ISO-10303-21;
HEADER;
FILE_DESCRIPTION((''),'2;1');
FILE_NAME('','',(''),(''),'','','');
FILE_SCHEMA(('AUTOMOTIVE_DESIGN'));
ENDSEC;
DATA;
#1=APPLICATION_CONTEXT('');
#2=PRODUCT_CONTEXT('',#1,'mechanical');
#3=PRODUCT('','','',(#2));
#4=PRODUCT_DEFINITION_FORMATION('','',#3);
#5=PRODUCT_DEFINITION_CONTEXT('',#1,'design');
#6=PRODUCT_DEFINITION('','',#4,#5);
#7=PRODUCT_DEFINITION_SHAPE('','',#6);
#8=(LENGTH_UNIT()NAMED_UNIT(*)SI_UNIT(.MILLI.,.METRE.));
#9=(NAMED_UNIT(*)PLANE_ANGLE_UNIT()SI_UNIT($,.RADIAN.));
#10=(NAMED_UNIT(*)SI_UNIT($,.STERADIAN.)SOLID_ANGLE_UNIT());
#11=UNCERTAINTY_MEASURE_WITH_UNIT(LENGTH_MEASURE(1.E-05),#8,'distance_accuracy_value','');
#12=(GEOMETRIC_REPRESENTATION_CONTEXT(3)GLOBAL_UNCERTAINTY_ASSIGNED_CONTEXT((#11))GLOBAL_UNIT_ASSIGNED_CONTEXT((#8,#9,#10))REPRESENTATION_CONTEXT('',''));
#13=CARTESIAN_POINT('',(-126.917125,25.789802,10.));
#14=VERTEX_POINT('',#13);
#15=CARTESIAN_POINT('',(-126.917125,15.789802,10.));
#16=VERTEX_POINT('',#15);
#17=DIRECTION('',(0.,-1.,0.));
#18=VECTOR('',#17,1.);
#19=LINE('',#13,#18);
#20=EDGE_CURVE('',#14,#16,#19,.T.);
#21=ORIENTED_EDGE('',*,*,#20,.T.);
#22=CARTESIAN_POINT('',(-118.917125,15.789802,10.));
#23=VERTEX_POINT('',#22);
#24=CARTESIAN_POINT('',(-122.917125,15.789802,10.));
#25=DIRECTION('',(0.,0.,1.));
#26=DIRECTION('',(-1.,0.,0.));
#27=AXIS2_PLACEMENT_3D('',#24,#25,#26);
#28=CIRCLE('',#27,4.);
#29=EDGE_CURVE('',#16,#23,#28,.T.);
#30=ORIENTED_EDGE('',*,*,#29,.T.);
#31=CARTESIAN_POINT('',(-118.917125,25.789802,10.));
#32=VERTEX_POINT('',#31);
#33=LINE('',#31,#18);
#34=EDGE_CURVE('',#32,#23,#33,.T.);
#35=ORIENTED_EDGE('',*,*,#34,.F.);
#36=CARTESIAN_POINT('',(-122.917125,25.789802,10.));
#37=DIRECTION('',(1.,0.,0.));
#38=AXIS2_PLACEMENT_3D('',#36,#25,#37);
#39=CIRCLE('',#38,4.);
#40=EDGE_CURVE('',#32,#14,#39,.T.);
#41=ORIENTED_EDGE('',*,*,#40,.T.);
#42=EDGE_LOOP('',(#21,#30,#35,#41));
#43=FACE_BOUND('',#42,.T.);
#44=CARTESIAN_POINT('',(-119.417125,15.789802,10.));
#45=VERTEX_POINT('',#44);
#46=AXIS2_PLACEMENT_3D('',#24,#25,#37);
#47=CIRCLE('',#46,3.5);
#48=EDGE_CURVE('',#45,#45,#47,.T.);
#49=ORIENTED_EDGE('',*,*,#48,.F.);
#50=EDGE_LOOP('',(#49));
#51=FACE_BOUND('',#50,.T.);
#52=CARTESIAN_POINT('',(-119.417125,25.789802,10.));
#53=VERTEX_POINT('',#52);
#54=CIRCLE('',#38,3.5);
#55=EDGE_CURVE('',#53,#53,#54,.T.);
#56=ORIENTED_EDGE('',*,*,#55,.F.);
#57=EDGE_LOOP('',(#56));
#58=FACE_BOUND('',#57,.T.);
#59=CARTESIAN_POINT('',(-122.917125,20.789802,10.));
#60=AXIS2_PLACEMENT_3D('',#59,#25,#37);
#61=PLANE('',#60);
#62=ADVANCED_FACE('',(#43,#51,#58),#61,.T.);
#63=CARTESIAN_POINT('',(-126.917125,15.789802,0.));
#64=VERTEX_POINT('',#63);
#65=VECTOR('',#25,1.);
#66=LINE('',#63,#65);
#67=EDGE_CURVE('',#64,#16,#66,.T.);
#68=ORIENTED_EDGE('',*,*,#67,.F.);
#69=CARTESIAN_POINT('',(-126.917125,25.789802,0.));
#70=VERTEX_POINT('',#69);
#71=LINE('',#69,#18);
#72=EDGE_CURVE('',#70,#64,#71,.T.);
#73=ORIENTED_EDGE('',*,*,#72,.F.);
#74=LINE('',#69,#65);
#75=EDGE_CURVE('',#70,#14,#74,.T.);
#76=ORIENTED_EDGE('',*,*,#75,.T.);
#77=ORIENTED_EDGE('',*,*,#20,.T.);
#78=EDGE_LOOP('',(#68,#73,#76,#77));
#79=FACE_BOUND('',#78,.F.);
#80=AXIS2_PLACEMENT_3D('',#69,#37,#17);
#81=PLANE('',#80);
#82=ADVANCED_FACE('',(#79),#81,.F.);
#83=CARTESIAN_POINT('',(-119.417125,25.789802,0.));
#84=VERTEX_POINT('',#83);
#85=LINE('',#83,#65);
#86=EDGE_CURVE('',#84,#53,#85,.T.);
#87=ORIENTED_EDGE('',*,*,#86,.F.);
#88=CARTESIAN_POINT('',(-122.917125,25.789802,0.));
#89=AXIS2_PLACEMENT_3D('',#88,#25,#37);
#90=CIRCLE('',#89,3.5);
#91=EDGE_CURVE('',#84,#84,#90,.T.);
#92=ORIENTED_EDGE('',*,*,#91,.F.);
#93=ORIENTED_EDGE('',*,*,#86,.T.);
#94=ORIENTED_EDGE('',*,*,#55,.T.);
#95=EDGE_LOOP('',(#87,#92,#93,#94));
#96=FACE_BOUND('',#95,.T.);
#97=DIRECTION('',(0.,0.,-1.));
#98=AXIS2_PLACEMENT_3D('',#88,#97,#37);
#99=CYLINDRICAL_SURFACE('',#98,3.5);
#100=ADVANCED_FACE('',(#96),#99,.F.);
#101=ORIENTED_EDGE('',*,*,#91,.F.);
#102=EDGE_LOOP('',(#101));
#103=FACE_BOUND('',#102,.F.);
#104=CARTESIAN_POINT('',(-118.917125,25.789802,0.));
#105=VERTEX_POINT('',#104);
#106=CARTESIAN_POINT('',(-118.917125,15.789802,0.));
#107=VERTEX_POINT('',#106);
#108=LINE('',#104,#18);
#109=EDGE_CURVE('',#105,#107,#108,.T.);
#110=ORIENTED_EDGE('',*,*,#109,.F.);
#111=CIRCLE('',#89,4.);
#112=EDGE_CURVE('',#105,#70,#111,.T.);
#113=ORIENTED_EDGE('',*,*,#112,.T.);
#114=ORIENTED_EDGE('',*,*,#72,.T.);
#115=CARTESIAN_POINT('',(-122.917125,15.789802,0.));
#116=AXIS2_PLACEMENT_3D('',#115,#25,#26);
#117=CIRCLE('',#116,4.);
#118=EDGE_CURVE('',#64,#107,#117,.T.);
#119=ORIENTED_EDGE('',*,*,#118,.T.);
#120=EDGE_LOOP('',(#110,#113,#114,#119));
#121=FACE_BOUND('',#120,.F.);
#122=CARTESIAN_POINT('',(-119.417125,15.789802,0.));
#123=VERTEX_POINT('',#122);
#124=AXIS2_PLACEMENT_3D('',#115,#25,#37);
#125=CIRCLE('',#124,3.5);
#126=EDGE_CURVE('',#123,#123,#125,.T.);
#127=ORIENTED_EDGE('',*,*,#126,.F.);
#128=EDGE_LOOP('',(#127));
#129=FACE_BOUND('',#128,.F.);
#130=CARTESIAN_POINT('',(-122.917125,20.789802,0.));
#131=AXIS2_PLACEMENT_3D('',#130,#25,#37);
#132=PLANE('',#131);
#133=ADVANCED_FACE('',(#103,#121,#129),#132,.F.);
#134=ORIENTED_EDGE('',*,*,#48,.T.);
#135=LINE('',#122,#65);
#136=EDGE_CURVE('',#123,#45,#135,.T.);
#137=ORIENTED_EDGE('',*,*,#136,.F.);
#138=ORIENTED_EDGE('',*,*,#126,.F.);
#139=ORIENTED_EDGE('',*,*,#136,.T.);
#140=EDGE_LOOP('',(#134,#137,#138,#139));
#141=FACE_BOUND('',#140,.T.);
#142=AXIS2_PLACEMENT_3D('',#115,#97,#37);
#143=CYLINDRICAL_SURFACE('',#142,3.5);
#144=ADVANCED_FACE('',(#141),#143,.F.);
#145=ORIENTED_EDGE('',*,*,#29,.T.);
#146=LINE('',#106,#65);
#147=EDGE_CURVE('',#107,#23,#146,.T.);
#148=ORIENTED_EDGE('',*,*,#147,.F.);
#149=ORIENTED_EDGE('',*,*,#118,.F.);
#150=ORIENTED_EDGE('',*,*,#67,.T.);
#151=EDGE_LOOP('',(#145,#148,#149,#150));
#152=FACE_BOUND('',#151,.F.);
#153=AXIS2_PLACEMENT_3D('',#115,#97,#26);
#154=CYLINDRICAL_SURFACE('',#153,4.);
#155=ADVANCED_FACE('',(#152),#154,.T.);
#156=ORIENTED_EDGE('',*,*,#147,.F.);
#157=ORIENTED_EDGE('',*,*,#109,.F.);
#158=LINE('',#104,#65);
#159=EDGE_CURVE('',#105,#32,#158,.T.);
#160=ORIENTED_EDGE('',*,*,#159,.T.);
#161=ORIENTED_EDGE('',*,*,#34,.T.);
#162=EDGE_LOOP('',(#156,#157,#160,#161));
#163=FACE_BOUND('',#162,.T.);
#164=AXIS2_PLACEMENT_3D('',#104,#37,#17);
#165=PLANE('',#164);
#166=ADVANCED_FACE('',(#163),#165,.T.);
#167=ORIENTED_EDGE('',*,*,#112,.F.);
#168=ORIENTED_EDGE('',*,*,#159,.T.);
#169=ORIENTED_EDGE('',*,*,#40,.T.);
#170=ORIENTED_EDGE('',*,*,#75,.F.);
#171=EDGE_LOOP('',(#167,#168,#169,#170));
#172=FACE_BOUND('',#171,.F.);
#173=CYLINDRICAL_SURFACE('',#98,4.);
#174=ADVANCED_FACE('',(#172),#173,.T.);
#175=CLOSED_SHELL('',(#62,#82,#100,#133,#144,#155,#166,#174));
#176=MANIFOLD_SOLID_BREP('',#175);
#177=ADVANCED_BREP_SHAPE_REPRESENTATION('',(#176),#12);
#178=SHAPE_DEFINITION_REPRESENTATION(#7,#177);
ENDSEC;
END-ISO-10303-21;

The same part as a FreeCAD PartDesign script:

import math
import FreeCAD as App
import Part
import Sketcher

V = App.Vector
Q = App.Units.Quantity

doc = App.newDocument("Part")
params = doc.addObject("Spreadsheet::Sheet", "Params")
for row, (alias, value) in enumerate([
    ("sketch1_diameter", "7 mm"),
    ("sketch1_radius", "4 mm"),
    ("sketch1_height", "10 mm"),
    ("pad1_length", "10 mm"),
], start=1):
    params.set(f"A{row}", alias)
    params.set(f"B{row}", "=" + value)
    params.setAlias(f"B{row}", alias)

body = doc.addObject("PartDesign::Body", "Body")

# Sketch on XY plane
sketch1 = doc.addObject("Sketcher::SketchObject", "Sketch")
body.addObject(sketch1)
sketch1.AttachmentSupport = (doc.XY_Plane, [""])
sketch1.MapMode = "FlatFace"
sketch1.addGeometry([
    Part.ArcOfCircle(Part.Circle(V(-122.9, 25.8, 0), V(0, 0, 1), 4), math.radians(0), math.radians(180)),  # 0
    Part.LineSegment(V(-126.9, 25.8, 0), V(-126.9, 15.8, 0)),  # 1
    Part.ArcOfCircle(Part.Circle(V(-122.9, 15.8, 0), V(0, 0, 1), 4), math.radians(180), math.radians(360)),  # 2
    Part.LineSegment(V(-118.9, 15.8, 0), V(-118.9, 25.8, 0)),  # 3
    Part.Circle(V(-122.9, 15.8, 0), V(0, 0, 1), 3.5),  # 4
    Part.Circle(V(-122.9, 25.8, 0), V(0, 0, 1), 3.5),  # 5
], False)
sketch1.addConstraint([
    Sketcher.Constraint("Tangent", 0, 2, 1, 1),
    Sketcher.Constraint("Tangent", 1, 2, 2, 1),
    Sketcher.Constraint("Tangent", 2, 2, 3, 1),
    Sketcher.Constraint("Tangent", 3, 2, 0, 1),
    Sketcher.Constraint("Vertical", 1),
    Sketcher.Constraint("Vertical", 3),
    Sketcher.Constraint("Coincident", 4, 3, 2, 3),
    Sketcher.Constraint("Coincident", 5, 3, 0, 3),
    Sketcher.Constraint("Equal", 4, 5),
    Sketcher.Constraint("Diameter", 4, Q("7 mm")),
    Sketcher.Constraint("Radius", 0, Q("4 mm")),
    Sketcher.Constraint("DistanceY", 1, 2, 1, 1, Q("10 mm")),
    Sketcher.Constraint("DistanceX", 0, 3, -1, 1, Q("122.917125 mm")),
    Sketcher.Constraint("DistanceY", -1, 1, 0, 3, Q("25.789802 mm")),
])
sketch1.setExpression("Constraints[9]", "Params.sketch1_diameter")
sketch1.setExpression("Constraints[10]", "Params.sketch1_radius")
sketch1.setExpression("Constraints[11]", "Params.sketch1_height")
pad1 = doc.addObject("PartDesign::Pad", "Pad")
body.addObject(pad1)
pad1.Profile = sketch1
pad1.setExpression("Length", "Params.pad1_length")

doc.recompute()
